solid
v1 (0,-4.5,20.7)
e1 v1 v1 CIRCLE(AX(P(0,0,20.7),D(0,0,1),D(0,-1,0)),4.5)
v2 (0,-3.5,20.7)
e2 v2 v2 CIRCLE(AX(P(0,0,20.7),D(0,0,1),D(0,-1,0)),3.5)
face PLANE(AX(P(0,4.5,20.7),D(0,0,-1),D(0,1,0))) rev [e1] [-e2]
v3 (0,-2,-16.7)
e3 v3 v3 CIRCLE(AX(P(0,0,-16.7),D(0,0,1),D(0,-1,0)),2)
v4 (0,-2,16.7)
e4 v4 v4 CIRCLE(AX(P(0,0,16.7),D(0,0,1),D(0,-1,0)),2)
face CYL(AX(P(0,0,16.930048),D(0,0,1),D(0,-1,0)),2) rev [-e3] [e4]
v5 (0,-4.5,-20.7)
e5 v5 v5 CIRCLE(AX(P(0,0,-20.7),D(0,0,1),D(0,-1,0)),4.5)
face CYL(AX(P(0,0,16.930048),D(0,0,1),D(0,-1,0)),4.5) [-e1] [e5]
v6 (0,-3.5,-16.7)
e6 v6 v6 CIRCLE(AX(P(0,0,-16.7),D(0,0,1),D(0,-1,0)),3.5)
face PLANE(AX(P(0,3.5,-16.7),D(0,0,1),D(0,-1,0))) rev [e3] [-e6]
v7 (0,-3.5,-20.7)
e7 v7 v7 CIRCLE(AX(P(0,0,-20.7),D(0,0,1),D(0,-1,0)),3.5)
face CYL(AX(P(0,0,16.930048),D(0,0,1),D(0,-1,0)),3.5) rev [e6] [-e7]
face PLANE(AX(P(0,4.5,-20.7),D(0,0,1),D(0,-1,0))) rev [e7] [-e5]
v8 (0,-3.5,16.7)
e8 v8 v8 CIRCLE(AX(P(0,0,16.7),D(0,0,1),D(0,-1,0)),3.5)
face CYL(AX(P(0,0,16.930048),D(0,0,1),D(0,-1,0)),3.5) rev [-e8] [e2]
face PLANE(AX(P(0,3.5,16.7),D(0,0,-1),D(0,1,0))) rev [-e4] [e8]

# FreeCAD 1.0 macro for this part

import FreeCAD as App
import Part
import Sketcher
from FreeCAD import Vector

doc = App.newDocument("Part")
params = doc.addObject("Spreadsheet::Sheet", "Params")
for row, (alias, value) in enumerate([
    ("sketch1_width", "1 mm"),
    ("sketch1_height", "4 mm"),
    ("sketch1_width2", "1.5 mm"),
    ("sketch1_height2", "41.4 mm"),
    ("revolution_angle", "360 deg"),
], start=1):
    params.set(f"A{row}", alias)
    params.set(f"B{row}", "=" + value)
    params.setAlias(f"B{row}", alias)

body = doc.addObject("PartDesign::Body", "Body")

# Sketch on YZ plane
sketch1 = body.newObject("Sketcher::SketchObject", "Sketch")
sketch1.AttachmentSupport = (doc.getObject("YZ_Plane"), [""])
sketch1.MapMode = "FlatFace"
sketch1.addGeometry(Part.LineSegment(Vector(3.5, -16.7, 0), Vector(3.5, -20.7, 0)), False)
sketch1.addGeometry(Part.LineSegment(Vector(3.5, -20.7, 0), Vector(4.5, -20.7, 0)), False)
sketch1.addGeometry(Part.LineSegment(Vector(4.5, -20.7, 0), Vector(4.5, 20.7, 0)), False)
sketch1.addGeometry(Part.LineSegment(Vector(4.5, 20.7, 0), Vector(3.5, 20.7, 0)), False)
sketch1.addGeometry(Part.LineSegment(Vector(3.5, 20.7, 0), Vector(3.5, 16.7, 0)), False)
sketch1.addGeometry(Part.LineSegment(Vector(3.5, 16.7, 0), Vector(2, 16.7, 0)), False)
sketch1.addGeometry(Part.LineSegment(Vector(2, 16.7, 0), Vector(2, -16.7, 0)), False)
sketch1.addGeometry(Part.LineSegment(Vector(2, -16.7, 0), Vector(3.5, -16.7, 0)), False)
sketch1.addConstraint(Sketcher.Constraint("Coincident", 0, 2, 1, 1))
sketch1.addConstraint(Sketcher.Constraint("Coincident", 1, 2, 2, 1))
sketch1.addConstraint(Sketcher.Constraint("Coincident", 2, 2, 3, 1))
sketch1.addConstraint(Sketcher.Constraint("Coincident", 3, 2, 4, 1))
sketch1.addConstraint(Sketcher.Constraint("Coincident", 4, 2, 5, 1))
sketch1.addConstraint(Sketcher.Constraint("Coincident", 5, 2, 6, 1))
sketch1.addConstraint(Sketcher.Constraint("Coincident", 6, 2, 7, 1))
sketch1.addConstraint(Sketcher.Constraint("Coincident", 7, 2, 0, 1))
sketch1.addConstraint(Sketcher.Constraint("Vertical", 0))
sketch1.addConstraint(Sketcher.Constraint("Horizontal", 1))
sketch1.addConstraint(Sketcher.Constraint("Vertical", 2))
sketch1.addConstraint(Sketcher.Constraint("Horizontal", 3))
sketch1.addConstraint(Sketcher.Constraint("Vertical", 4))
sketch1.addConstraint(Sketcher.Constraint("Horizontal", 5))
sketch1.addConstraint(Sketcher.Constraint("Vertical", 6))
sketch1.addConstraint(Sketcher.Constraint("Horizontal", 7))
sketch1.addConstraint(Sketcher.Constraint("Symmetric", 0, 2, 3, 2, -1))
sketch1.addConstraint(Sketcher.Constraint("Equal", 0, 4))
sketch1.addConstraint(Sketcher.Constraint("DistanceX", 1, 1, 1, 2, 1.0))
sketch1.addConstraint(Sketcher.Constraint("DistanceY", 0, 2, 0, 1, 4.0))
sketch1.addConstraint(Sketcher.Constraint("DistanceX", 5, 2, 5, 1, 1.5))
sketch1.addConstraint(Sketcher.Constraint("DistanceY", 2, 1, 2, 2, 41.4))
sketch1.addConstraint(Sketcher.Constraint("DistanceX", -1, 1, 5, 2, 2.0))
sketch1.setExpression("Constraints[18]", "Params.sketch1_width")
sketch1.setExpression("Constraints[19]", "Params.sketch1_height")
sketch1.setExpression("Constraints[20]", "Params.sketch1_width2")
sketch1.setExpression("Constraints[21]", "Params.sketch1_height2")
revolution = body.newObject("PartDesign::Revolution", "Revolution")
revolution.Profile = sketch1
revolution.ReferenceAxis = (sketch1, ["V_Axis"])
revolution.setExpression("Angle", "Params.revolution_angle")

doc.recompute()
